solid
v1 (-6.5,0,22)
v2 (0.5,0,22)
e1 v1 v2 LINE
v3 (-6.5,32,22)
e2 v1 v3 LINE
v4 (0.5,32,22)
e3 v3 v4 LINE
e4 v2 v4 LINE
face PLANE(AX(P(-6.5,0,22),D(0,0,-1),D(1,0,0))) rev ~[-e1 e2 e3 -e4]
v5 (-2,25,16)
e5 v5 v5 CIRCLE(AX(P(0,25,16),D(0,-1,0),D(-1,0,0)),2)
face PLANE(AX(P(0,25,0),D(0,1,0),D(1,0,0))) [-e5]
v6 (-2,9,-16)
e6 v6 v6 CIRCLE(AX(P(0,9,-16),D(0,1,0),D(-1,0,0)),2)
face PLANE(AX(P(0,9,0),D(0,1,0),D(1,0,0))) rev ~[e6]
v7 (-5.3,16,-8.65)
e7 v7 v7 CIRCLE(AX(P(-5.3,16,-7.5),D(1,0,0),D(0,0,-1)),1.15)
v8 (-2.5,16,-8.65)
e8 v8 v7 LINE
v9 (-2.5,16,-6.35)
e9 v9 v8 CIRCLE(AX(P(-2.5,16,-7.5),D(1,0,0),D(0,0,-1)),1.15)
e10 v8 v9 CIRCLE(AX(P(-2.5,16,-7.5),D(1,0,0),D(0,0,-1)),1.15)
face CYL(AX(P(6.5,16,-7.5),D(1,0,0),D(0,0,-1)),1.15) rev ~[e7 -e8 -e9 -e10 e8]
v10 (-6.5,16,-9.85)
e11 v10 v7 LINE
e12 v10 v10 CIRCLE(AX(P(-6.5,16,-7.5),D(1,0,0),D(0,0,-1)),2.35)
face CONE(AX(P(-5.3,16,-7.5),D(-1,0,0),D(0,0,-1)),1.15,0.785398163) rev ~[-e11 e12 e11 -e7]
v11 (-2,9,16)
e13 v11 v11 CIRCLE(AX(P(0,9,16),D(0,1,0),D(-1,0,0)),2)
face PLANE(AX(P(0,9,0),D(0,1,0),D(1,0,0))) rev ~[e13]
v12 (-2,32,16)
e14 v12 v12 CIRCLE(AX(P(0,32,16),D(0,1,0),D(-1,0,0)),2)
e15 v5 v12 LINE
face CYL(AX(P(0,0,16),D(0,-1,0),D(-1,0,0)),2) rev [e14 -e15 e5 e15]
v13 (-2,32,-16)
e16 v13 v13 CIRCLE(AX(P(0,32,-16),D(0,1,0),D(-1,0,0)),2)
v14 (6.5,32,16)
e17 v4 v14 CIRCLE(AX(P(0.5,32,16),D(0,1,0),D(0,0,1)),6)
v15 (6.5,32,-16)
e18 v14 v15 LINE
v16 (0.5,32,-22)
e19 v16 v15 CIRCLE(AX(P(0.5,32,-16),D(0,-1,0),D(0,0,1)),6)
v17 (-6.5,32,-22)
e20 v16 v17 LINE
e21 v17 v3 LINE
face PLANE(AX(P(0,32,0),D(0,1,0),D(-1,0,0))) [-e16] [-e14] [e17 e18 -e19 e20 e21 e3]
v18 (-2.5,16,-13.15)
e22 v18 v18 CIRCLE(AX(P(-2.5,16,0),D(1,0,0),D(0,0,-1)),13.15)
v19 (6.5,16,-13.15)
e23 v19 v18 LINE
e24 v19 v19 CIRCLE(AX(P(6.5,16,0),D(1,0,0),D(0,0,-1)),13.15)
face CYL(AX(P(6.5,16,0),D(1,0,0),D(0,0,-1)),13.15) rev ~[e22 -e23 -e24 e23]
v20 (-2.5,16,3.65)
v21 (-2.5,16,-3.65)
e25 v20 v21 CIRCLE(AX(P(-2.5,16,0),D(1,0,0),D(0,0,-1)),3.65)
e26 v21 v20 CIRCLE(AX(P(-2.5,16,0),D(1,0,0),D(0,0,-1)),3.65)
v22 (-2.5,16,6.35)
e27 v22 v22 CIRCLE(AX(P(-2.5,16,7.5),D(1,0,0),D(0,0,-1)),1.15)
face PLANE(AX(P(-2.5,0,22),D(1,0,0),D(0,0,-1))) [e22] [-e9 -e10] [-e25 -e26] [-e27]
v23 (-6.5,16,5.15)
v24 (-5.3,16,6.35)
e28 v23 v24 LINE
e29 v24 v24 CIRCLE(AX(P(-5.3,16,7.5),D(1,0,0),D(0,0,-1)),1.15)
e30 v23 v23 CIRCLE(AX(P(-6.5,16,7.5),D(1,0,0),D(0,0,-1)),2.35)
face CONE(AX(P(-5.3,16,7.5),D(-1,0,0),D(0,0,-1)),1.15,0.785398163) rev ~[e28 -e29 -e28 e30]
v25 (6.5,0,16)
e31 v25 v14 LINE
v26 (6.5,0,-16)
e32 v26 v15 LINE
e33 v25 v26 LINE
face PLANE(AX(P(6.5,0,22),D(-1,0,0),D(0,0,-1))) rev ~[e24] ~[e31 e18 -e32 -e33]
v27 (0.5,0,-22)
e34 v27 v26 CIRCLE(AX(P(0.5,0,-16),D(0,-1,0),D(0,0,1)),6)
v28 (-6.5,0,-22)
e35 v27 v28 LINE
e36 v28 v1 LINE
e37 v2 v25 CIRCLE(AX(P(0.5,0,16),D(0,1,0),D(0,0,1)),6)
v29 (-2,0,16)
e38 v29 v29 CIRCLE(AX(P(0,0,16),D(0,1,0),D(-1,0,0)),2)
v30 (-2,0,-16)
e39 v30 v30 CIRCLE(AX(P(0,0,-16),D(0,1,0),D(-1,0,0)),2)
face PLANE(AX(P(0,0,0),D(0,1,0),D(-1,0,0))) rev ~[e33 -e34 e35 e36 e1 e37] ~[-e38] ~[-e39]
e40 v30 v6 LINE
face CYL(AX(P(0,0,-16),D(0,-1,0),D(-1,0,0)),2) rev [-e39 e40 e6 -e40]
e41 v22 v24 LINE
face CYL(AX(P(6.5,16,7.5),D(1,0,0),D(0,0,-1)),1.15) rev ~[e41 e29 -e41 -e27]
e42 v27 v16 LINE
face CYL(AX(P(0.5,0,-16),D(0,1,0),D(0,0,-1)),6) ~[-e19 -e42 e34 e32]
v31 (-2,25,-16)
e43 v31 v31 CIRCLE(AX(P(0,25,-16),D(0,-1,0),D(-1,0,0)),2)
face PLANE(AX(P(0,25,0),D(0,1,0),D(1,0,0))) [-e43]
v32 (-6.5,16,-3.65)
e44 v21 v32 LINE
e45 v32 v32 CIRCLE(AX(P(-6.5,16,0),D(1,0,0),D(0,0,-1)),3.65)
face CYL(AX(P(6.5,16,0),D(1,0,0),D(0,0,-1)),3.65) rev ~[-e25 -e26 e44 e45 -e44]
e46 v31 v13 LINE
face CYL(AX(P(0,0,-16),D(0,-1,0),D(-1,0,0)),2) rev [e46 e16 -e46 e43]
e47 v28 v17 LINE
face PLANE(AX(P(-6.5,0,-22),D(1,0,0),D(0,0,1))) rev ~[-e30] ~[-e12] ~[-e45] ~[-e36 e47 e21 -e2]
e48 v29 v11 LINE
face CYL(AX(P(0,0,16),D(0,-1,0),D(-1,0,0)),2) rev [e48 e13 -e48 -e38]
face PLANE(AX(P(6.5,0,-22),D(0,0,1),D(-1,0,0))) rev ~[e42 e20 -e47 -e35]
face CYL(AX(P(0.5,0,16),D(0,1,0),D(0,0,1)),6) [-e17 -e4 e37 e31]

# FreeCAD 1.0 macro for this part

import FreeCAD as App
import Part
import Sketcher

V = App.Vector
Q = App.Units.Quantity


def edges_at(feature, points):
    """Names of the edges that pass closest to the given points."""
    edges = feature.Shape.Edges
    near = lambda p: min(range(len(edges)), key=lambda i: edges[i].distToShape(Part.Vertex(*p))[0])
    return sorted({f"Edge{near(p) + 1}" for p in points})

doc = App.newDocument("Part")
body = doc.addObject("PartDesign::Body", "Body")

# Sketch on XZ plane
sketch1 = doc.addObject("Sketcher::SketchObject", "Sketch")
body.addObject(sketch1)
sketch1.AttachmentSupport = (doc.XZ_Plane, [""])
sketch1.MapMode = "FlatFace"
sketch1.addGeometry(Part.LineSegment(V(-6.5, -22, 0), V(-6.5, 22, 0)), False)
sketch1.addGeometry(Part.LineSegment(V(-6.5, 22, 0), V(6.5, 22, 0)), False)
sketch1.addGeometry(Part.LineSegment(V(6.5, 22, 0), V(6.5, -22, 0)), False)
sketch1.addGeometry(Part.LineSegment(V(6.5, -22, 0), V(-6.5, -22, 0)), False)
sketch1.addGeometry(Part.Circle(V(0, -16, 0), V(0, 0, 1), 2), False)
sketch1.addGeometry(Part.Circle(V(0, 16, 0), V(0, 0, 1), 2), False)
sketch1.addConstraint(Sketcher.Constraint("Coincident", 0, 2, 1, 1))
sketch1.addConstraint(Sketcher.Constraint("Coincident", 1, 2, 2, 1))
sketch1.addConstraint(Sketcher.Constraint("Coincident", 2, 2, 3, 1))
sketch1.addConstraint(Sketcher.Constraint("Coincident", 3, 2, 0, 1))
sketch1.addConstraint(Sketcher.Constraint("Vertical", 0))
sketch1.addConstraint(Sketcher.Constraint("Horizontal", 1))
sketch1.addConstraint(Sketcher.Constraint("Vertical", 2))
sketch1.addConstraint(Sketcher.Constraint("Horizontal", 3))
sketch1.addConstraint(Sketcher.Constraint("Equal", 4, 5))
sketch1.addConstraint(Sketcher.Constraint("Symmetric", 4, 3, 5, 3, -1, 1))
sketch1.addConstraint(Sketcher.Constraint("Symmetric", 0, 2, 2, 2, -1, 1))
sketch1.addConstraint(Sketcher.Constraint("PointOnObject", 4, 3, -2))
sketch1.addConstraint(Sketcher.Constraint("Diameter", 4, Q("4 mm")))
sketch1.addConstraint(Sketcher.Constraint("DistanceX", 1, 1, 1, 2, Q("13 mm")))
sketch1.addConstraint(Sketcher.Constraint("DistanceY", 0, 1, 0, 2, Q("44 mm")))
sketch1.addConstraint(Sketcher.Constraint("DistanceY", 4, 3, -1, 1, Q("16 mm")))
pad1 = doc.addObject("PartDesign::Pad", "Pad")
body.addObject(pad1)
pad1.Profile = sketch1
pad1.Length = 32
pad1.Reversed = True

# Sketch on YZ plane
sketch2 = doc.addObject("Sketcher::SketchObject", "Sketch001")
body.addObject(sketch2)
sketch2.AttachmentSupport = (doc.YZ_Plane, [""])
sketch2.MapMode = "FlatFace"
sketch2.AttachmentOffset = App.Placement(V(0, 0, 6.5), App.Rotation())
sketch2.addGeometry(Part.Circle(V(16, -7.5, 0), V(0, 0, 1), 1.15), False)
sketch2.addGeometry(Part.Circle(V(16, 7.5, 0), V(0, 0, 1), 1.15), False)
sketch2.addGeometry(Part.Circle(V(16, 0, 0), V(0, 0, 1), 3.65), False)
sketch2.addConstraint(Sketcher.Constraint("Equal", 0, 1))
sketch2.addConstraint(Sketcher.Constraint("Symmetric", 0, 3, 1, 3, -1))
sketch2.addConstraint(Sketcher.Constraint("PointOnObject", 2, 3, -1))
sketch2.addConstraint(Sketcher.Constraint("Vertical", 1, 3, 2, 3))
sketch2.addConstraint(Sketcher.Constraint("Diameter", 0, Q("2.3 mm")))
sketch2.addConstraint(Sketcher.Constraint("Diameter", 2, Q("7.3 mm")))
sketch2.addConstraint(Sketcher.Constraint("DistanceY", 0, 3, 1, 3, Q("15 mm")))
sketch2.addConstraint(Sketcher.Constraint("DistanceX", -1, 1, 0, 3, Q("16 mm")))
pocket1 = doc.addObject("PartDesign::Pocket", "Pocket")
body.addObject(pocket1)
pocket1.Profile = sketch2
pocket1.Type = "ThroughAll"

# Sketch on YZ plane
sketch3 = doc.addObject("Sketcher::SketchObject", "Sketch002")
body.addObject(sketch3)
sketch3.AttachmentSupport = (doc.YZ_Plane, [""])
sketch3.MapMode = "FlatFace"
sketch3.AttachmentOffset = App.Placement(V(0, 0, 6.5), App.Rotation())
sketch3.addGeometry(Part.Circle(V(16, 0, 0), V(0, 0, 1), 13.15), False)
sketch3.addGeometry(Part.Circle(V(16, -7.5, 0), V(0, 0, 1), 1.15), False)
sketch3.addGeometry(Part.Circle(V(16, 7.5, 0), V(0, 0, 1), 1.15), False)
sketch3.addConstraint(Sketcher.Constraint("Equal", 1, 2))
sketch3.addConstraint(Sketcher.Constraint("Symmetric", 1, 3, 2, 3, -1))
sketch3.addConstraint(Sketcher.Constraint("PointOnObject", 0, 3, -1))
sketch3.addConstraint(Sketcher.Constraint("Vertical", 0, 3, 1, 3))
sketch3.addConstraint(Sketcher.Constraint("Diameter", 0, Q("26.3 mm")))
sketch3.addConstraint(Sketcher.Constraint("Diameter", 1, Q("2.3 mm")))
sketch3.addConstraint(Sketcher.Constraint("DistanceY", 1, 3, 2, 3, Q("15 mm")))
sketch3.addConstraint(Sketcher.Constraint("DistanceX", -1, 1, 0, 3, Q("16 mm")))
pocket2 = doc.addObject("PartDesign::Pocket", "Pocket001")
body.addObject(pocket2)
pocket2.Profile = sketch3
pocket2.Length = 9

# Sketch on XZ plane
sketch4 = doc.addObject("Sketcher::SketchObject", "Sketch003")
body.addObject(sketch4)
sketch4.AttachmentSupport = (doc.XZ_Plane, [""])
sketch4.MapMode = "FlatFace"
sketch4.AttachmentOffset = App.Placement(V(0, 0, -25), App.Rotation())
sketch4.addGeometry(Part.Circle(V(0, 16, 0), V(0, 0, 1), 2), False)
sketch4.addGeometry(Part.Circle(V(0, -16, 0), V(0, 0, 1), 2), False)
sketch4.addConstraint(Sketcher.Constraint("Equal", 0, 1))
sketch4.addConstraint(Sketcher.Constraint("Symmetric", 0, 3, 1, 3, -1, 1))
sketch4.addConstraint(Sketcher.Constraint("PointOnObject", 0, 3, -2))
sketch4.addConstraint(Sketcher.Constraint("Diameter", 0, Q("4 mm")))
sketch4.addConstraint(Sketcher.Constraint("DistanceY", -1, 1, 0, 3, Q("16 mm")))
pad2 = doc.addObject("PartDesign::Pad", "Pad001")
body.addObject(pad2)
pad2.Profile = sketch4
pad2.Length = 16
doc.recompute()

fillet = doc.addObject("PartDesign::Fillet", "Fillet")
body.addObject(fillet)
fillet.Base = (pad2, edges_at(pad2, [(6.5, 16, 22), (6.5, 16, -22)]))
fillet.Radius = 6
doc.recompute()

chamfer = doc.addObject("PartDesign::Chamfer", "Chamfer")
body.addObject(chamfer)
chamfer.Base = (fillet, edges_at(fillet, [(-6.5, 16, -6.35), (-6.5, 16, 8.65)]))
chamfer.Size = 1.2

doc.recompute()
